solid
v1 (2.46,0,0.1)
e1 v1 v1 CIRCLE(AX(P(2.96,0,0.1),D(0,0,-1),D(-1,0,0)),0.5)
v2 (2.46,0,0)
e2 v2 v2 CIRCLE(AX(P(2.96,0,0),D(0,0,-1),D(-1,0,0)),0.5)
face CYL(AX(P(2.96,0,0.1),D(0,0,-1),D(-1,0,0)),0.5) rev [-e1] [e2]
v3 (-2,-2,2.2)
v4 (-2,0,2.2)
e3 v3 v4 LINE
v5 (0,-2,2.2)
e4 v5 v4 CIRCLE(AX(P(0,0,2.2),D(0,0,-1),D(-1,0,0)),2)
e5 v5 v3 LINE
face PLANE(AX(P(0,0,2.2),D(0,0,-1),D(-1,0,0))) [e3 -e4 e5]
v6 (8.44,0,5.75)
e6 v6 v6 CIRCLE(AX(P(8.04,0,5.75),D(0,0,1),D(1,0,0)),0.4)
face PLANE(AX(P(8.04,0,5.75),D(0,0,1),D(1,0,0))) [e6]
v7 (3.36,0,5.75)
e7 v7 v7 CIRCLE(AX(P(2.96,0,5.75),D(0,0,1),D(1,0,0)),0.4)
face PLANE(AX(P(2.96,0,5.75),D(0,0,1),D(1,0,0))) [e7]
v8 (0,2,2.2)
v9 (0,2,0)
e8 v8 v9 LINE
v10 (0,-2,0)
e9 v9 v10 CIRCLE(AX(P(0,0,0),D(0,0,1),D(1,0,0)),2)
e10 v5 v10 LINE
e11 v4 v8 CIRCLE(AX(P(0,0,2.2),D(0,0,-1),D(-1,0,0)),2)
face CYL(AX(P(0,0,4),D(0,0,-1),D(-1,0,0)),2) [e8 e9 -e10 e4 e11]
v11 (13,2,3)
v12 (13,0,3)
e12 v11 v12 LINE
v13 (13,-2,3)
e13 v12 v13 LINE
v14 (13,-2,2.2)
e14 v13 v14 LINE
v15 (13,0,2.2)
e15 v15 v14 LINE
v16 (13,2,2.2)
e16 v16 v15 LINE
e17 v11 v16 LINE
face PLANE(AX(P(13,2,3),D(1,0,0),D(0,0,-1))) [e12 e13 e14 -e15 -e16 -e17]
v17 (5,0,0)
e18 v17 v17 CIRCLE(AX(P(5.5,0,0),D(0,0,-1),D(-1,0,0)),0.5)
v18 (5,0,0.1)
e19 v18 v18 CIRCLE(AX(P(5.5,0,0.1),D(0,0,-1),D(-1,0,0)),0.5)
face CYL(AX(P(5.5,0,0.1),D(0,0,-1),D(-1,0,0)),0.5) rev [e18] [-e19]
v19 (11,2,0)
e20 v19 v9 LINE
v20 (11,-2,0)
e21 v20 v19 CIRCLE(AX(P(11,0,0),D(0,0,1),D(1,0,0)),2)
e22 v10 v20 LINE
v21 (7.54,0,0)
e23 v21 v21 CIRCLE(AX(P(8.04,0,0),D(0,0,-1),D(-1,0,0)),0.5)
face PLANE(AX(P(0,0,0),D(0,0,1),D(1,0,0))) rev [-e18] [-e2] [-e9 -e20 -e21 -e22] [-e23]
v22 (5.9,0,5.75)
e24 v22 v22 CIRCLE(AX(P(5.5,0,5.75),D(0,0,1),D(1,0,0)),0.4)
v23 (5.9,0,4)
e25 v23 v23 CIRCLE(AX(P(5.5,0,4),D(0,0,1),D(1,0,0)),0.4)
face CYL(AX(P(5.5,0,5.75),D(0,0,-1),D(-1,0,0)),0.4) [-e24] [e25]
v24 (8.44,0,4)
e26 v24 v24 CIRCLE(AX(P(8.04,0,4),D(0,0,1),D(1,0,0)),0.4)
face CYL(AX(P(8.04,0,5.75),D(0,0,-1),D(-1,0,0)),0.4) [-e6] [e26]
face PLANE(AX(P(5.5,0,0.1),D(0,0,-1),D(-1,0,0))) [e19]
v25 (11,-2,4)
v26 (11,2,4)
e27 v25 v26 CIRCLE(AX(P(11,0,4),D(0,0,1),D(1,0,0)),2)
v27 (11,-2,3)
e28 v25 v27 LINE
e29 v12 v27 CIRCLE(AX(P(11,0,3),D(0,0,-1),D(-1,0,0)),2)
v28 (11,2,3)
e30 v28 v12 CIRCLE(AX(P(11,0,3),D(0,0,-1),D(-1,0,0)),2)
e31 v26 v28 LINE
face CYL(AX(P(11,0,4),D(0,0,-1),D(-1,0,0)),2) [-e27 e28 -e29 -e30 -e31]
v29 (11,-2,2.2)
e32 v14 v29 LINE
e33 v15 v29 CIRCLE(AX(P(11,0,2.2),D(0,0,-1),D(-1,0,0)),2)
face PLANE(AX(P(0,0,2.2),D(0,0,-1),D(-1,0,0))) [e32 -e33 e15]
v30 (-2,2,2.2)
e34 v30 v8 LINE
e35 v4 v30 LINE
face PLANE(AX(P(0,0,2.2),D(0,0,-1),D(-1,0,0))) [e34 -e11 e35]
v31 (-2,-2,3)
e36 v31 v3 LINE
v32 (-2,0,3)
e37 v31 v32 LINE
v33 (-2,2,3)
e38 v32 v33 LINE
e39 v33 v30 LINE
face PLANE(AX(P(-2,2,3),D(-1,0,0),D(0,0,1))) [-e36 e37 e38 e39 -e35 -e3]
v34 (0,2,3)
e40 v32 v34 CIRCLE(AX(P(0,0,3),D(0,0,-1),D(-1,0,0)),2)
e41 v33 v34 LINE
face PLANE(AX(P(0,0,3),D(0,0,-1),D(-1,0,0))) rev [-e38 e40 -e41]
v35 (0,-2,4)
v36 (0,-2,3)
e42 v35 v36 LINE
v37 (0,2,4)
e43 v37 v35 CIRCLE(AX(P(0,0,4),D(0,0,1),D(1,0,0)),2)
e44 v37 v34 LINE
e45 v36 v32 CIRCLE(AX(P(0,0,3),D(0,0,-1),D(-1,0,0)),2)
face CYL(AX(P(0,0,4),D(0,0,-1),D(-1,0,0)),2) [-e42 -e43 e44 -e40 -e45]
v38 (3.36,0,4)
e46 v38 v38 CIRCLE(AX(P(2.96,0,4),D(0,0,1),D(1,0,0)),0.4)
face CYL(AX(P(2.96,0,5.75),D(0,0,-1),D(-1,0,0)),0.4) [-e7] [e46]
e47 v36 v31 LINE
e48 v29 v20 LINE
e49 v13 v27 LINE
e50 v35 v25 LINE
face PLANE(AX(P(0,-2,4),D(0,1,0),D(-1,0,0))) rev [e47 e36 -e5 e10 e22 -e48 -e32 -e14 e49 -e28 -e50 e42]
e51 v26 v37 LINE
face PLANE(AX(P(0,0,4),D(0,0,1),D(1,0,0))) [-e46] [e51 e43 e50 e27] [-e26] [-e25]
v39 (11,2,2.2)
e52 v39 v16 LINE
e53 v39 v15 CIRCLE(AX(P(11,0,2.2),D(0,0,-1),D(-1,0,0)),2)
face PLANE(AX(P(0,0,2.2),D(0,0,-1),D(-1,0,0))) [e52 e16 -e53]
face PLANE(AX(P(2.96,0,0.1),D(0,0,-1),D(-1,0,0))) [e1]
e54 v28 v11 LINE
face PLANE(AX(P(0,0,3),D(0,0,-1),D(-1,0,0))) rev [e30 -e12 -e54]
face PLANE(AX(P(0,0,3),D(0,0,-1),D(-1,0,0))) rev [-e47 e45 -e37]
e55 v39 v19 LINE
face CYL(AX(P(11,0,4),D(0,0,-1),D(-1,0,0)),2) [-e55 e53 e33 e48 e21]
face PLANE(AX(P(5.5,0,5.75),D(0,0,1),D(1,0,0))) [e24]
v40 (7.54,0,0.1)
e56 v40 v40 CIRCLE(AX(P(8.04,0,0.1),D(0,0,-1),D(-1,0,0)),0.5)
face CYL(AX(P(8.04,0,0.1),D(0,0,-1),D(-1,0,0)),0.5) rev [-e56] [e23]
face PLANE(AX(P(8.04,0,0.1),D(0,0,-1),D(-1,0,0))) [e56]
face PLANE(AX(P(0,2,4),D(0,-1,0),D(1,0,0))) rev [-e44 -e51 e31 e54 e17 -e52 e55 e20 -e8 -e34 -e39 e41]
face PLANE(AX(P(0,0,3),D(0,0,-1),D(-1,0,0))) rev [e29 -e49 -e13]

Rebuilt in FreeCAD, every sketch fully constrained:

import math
import FreeCAD as App
import Part
import Sketcher

V = App.Vector
Q = App.Units.Quantity


def edges_at(feature, points):
    """Names of the edges that pass closest to the given points."""
    edges = feature.Shape.Edges
    near = lambda p: min(range(len(edges)), key=lambda i: edges[i].distToShape(Part.Vertex(*p))[0])
    return sorted({f"Edge{near(p) + 1}" for p in points})


def add_polygon(sketch, points):
    """Adds a closed chain of lines whose ends are joined by coincident constraints."""
    first, n = sketch.GeometryCount, len(points)
    for a, b in zip(points, points[1:] + points[:1]):
        sketch.addGeometry(Part.LineSegment(App.Vector(*a, 0), App.Vector(*b, 0)), False)
    for i in range(n):
        sketch.addConstraint(Sketcher.Constraint("Coincident", first + i, 2, first + (i + 1) % n, 1))

doc = App.newDocument("Part")
params = doc.addObject("Spreadsheet::Sheet", "Params")
for row, (alias, value) in enumerate([
    ("sketch1_radius", "2 mm"),
    ("sketch1_width", "11 mm"),
    ("pad1_length", "4 mm"),
    ("sketch2_width", "15 mm"),
    ("sketch2_height", "4 mm"),
    ("pad2_length", "0.8 mm"),
    ("sketch3_diameter", "1 mm"),
    ("pad3_length", "1 mm"),
    ("fillet_radius", "0.5 mm"),
    ("sketch4_diameter", "0.8 mm"),
    ("pad4_length", "1.75 mm"),
    ("sketch5_radius", "2 mm"),
    ("sketch5_width", "11 mm"),
    ("pocket1_length", "1.75 mm"),
    ("sketch6_diameter", "1 mm"),
    ("pocket2_length", "0.1 mm"),
], start=1):
    params.set(f"A{row}", alias)
    params.set(f"B{row}", "=" + value)
    params.setAlias(f"B{row}", alias)

body = doc.addObject("PartDesign::Body", "Body")

sketch1 = doc.addObject("Sketcher::SketchObject", "Sketch")
body.addObject(sketch1)
sketch1.AttachmentSupport = (doc.XY_Plane, [""])
sketch1.MapMode = "FlatFace"
sketch1.addGeometry([
    Part.LineSegment(V(11, 2, 0), V(0, 2, 0)),
    Part.ArcOfCircle(Part.Circle(V(0, 0, 0), V(0, 0, 1), 2), math.radians(90), math.radians(270)),
    Part.LineSegment(V(0, -2, 0), V(11, -2, 0)),
    Part.ArcOfCircle(Part.Circle(V(11, 0, 0), V(0, 0, 1), 2), math.radians(-90), math.radians(90)),
], False)
sketch1.addConstraint([
    Sketcher.Constraint("Tangent", 0, 2, 1, 1),
    Sketcher.Constraint("Tangent", 1, 2, 2, 1),
    Sketcher.Constraint("Tangent", 2, 2, 3, 1),
    Sketcher.Constraint("Tangent", 3, 2, 0, 1),
    Sketcher.Constraint("Horizontal", 0),
    Sketcher.Constraint("Horizontal", 2),
    Sketcher.Constraint("Coincident", 1, 3, -1, 1),
    Sketcher.Constraint("Radius", 1, Q("2 mm")),
    Sketcher.Constraint("DistanceX", 0, 2, 0, 1, Q("11 mm")),
])
sketch1.setExpression("Constraints[7]", "Params.sketch1_radius")
sketch1.setExpression("Constraints[8]", "Params.sketch1_width")
pad1 = doc.addObject("PartDesign::Pad", "Pad")
body.addObject(pad1)
pad1.Profile = sketch1
pad1.setExpression("Length", "Params.pad1_length")

sketch2 = doc.addObject("Sketcher::SketchObject", "Sketch001")
body.addObject(sketch2)
sketch2.AttachmentSupport = (doc.XY_Plane, [""])
sketch2.MapMode = "FlatFace"
sketch2.AttachmentOffset = App.Placement(V(0, 0, 2.2), App.Rotation())
add_polygon(sketch2, [(13, 2), (13, -2), (-2, -2), (-2, 2)])
sketch2.addConstraint([
    Sketcher.Constraint("Vertical", 0),
    Sketcher.Constraint("Horizontal", 1),
    Sketcher.Constraint("Vertical", 2),
    Sketcher.Constraint("Horizontal", 3),
    Sketcher.Constraint("DistanceX", 1, 2, 1, 1, Q("15 mm")),
    Sketcher.Constraint("DistanceY", 0, 2, 0, 1, Q("4 mm")),
    Sketcher.Constraint("DistanceX", -1, 1, 0, 2, Q("13 mm")),
    Sketcher.Constraint("DistanceY", 0, 2, -1, 1, Q("2 mm")),
])
sketch2.setExpression("Constraints[8]", "Params.sketch2_width")
sketch2.setExpression("Constraints[9]", "Params.sketch2_height")
pad2 = doc.addObject("PartDesign::Pad", "Pad001")
body.addObject(pad2)
pad2.Profile = sketch2
pad2.setExpression("Length", "Params.pad2_length")

sketch3 = doc.addObject("Sketcher::SketchObject", "Sketch002")
body.addObject(sketch3)
sketch3.AttachmentSupport = (doc.XY_Plane, [""])
sketch3.MapMode = "FlatFace"
sketch3.addGeometry([
    Part.Circle(V(8.04, 0, 0), V(0, 0, 1), 0.5),
    Part.Circle(V(5.5, 0, 0), V(0, 0, 1), 0.5),
    Part.Circle(V(2.96, 0, 0), V(0, 0, 1), 0.5),
], False)
sketch3.addConstraint([
    Sketcher.Constraint("Equal", 0, 1),
    Sketcher.Constraint("Equal", 1, 2),
    Sketcher.Constraint("PointOnObject", 0, 3, -1),
    Sketcher.Constraint("PointOnObject", 1, 3, -1),
    Sketcher.Constraint("PointOnObject", 2, 3, -1),
    Sketcher.Constraint("Diameter", 0, Q("1 mm")),
    Sketcher.Constraint("DistanceX", -1, 1, 1, 3, Q("5.5 mm")),
    Sketcher.Constraint("DistanceX", -1, 1, 0, 3, Q("8.04 mm")),
    Sketcher.Constraint("DistanceX", -1, 1, 2, 3, Q("2.96 mm")),
])
sketch3.setExpression("Constraints[5]", "Params.sketch3_diameter")
pad3 = doc.addObject("PartDesign::Pad", "Pad002")
body.addObject(pad3)
pad3.Profile = sketch3
pad3.setExpression("Length", "Params.pad3_length")
pad3.Reversed = True
doc.recompute()

fillet = doc.addObject("PartDesign::Fillet", "Fillet")
body.addObject(fillet)
fillet.Base = (pad3, edges_at(pad3, [(7.54, 0, -1), (5, 0, -1), (2.46, 0, -1)]))
fillet.setExpression("Radius", "Params.fillet_radius")

sketch4 = doc.addObject("Sketcher::SketchObject", "Sketch003")
body.addObject(sketch4)
sketch4.AttachmentSupport = (doc.XY_Plane, [""])
sketch4.MapMode = "FlatFace"
sketch4.AttachmentOffset = App.Placement(V(0, 0, 4), App.Rotation())
sketch4.addGeometry([
    Part.Circle(V(2.96, 0, 0), V(0, 0, 1), 0.4),
    Part.Circle(V(5.5, 0, 0), V(0, 0, 1), 0.4),
    Part.Circle(V(8.04, 0, 0), V(0, 0, 1), 0.4),
], False)
sketch4.addConstraint([
    Sketcher.Constraint("Equal", 0, 1),
    Sketcher.Constraint("Equal", 1, 2),
    Sketcher.Constraint("PointOnObject", 0, 3, -1),
    Sketcher.Constraint("PointOnObject", 1, 3, -1),
    Sketcher.Constraint("PointOnObject", 2, 3, -1),
    Sketcher.Constraint("Diameter", 0, Q("0.8 mm")),
    Sketcher.Constraint("DistanceX", -1, 1, 1, 3, Q("5.5 mm")),
    Sketcher.Constraint("DistanceX", -1, 1, 0, 3, Q("2.96 mm")),
    Sketcher.Constraint("DistanceX", -1, 1, 2, 3, Q("8.04 mm")),
])
sketch4.setExpression("Constraints[5]", "Params.sketch4_diameter")
pad4 = doc.addObject("PartDesign::Pad", "Pad003")
body.addObject(pad4)
pad4.Profile = sketch4
pad4.setExpression("Length", "Params.pad4_length")

sketch5 = doc.addObject("Sketcher::SketchObject", "Sketch004")
body.addObject(sketch5)
sketch5.AttachmentSupport = (doc.XY_Plane, [""])
sketch5.MapMode = "FlatFace"
sketch5.AttachmentOffset = App.Placement(V(0, 0, -1.75), App.Rotation())
sketch5.addGeometry([
    Part.LineSegment(V(0, 2, 0), V(11, 2, 0)),
    Part.ArcOfCircle(Part.Circle(V(11, 0, 0), V(0, 0, 1), 2), math.radians(-90), math.radians(90)),
    Part.LineSegment(V(11, -2, 0), V(0, -2, 0)),
    Part.ArcOfCircle(Part.Circle(V(0, 0, 0), V(0, 0, 1), 2), math.radians(90), math.radians(270)),
], False)
sketch5.addConstraint([
    Sketcher.Constraint("Tangent", 0, 2, 1, 2),
    Sketcher.Constraint("Tangent", 1, 1, 2, 1),
    Sketcher.Constraint("Tangent", 2, 2, 3, 2),
    Sketcher.Constraint("Tangent", 3, 1, 0, 1),
    Sketcher.Constraint("Horizontal", 0),
    Sketcher.Constraint("Horizontal", 2),
    Sketcher.Constraint("Coincident", 3, 3, -1, 1),
    Sketcher.Constraint("Radius", 1, Q("2 mm")),
    Sketcher.Constraint("DistanceX", 0, 1, 0, 2, Q("11 mm")),
])
sketch5.setExpression("Constraints[7]", "Params.sketch5_radius")
sketch5.setExpression("Constraints[8]", "Params.sketch5_width")
pocket1 = doc.addObject("PartDesign::Pocket", "Pocket")
body.addObject(pocket1)
pocket1.Profile = sketch5
pocket1.setExpression("Length", "Params.pocket1_length")
pocket1.Reversed = True

sketch6 = doc.addObject("Sketcher::SketchObject", "Sketch005")
body.addObject(sketch6)
sketch6.AttachmentSupport = (doc.XY_Plane, [""])
sketch6.MapMode = "FlatFace"
sketch6.addGeometry([
    Part.Circle(V(8.04, 0, 0), V(0, 0, 1), 0.5),
    Part.Circle(V(5.5, 0, 0), V(0, 0, 1), 0.5),
    Part.Circle(V(2.96, 0, 0), V(0, 0, 1), 0.5),
], False)
sketch6.addConstraint([
    Sketcher.Constraint("Equal", 0, 1),
    Sketcher.Constraint("Equal", 1, 2),
    Sketcher.Constraint("PointOnObject", 0, 3, -1),
    Sketcher.Constraint("PointOnObject", 1, 3, -1),
    Sketcher.Constraint("PointOnObject", 2, 3, -1),
    Sketcher.Constraint("Diameter", 0, Q("1 mm")),
    Sketcher.Constraint("DistanceX", -1, 1, 1, 3, Q("5.5 mm")),
    Sketcher.Constraint("DistanceX", -1, 1, 0, 3, Q("8.04 mm")),
    Sketcher.Constraint("DistanceX", -1, 1, 2, 3, Q("2.96 mm")),
])
sketch6.setExpression("Constraints[5]", "Params.sketch6_diameter")
pocket2 = doc.addObject("PartDesign::Pocket", "Pocket001")
body.addObject(pocket2)
pocket2.Profile = sketch6
pocket2.setExpression("Length", "Params.pocket2_length")
pocket2.Reversed = True

doc.recompute()
